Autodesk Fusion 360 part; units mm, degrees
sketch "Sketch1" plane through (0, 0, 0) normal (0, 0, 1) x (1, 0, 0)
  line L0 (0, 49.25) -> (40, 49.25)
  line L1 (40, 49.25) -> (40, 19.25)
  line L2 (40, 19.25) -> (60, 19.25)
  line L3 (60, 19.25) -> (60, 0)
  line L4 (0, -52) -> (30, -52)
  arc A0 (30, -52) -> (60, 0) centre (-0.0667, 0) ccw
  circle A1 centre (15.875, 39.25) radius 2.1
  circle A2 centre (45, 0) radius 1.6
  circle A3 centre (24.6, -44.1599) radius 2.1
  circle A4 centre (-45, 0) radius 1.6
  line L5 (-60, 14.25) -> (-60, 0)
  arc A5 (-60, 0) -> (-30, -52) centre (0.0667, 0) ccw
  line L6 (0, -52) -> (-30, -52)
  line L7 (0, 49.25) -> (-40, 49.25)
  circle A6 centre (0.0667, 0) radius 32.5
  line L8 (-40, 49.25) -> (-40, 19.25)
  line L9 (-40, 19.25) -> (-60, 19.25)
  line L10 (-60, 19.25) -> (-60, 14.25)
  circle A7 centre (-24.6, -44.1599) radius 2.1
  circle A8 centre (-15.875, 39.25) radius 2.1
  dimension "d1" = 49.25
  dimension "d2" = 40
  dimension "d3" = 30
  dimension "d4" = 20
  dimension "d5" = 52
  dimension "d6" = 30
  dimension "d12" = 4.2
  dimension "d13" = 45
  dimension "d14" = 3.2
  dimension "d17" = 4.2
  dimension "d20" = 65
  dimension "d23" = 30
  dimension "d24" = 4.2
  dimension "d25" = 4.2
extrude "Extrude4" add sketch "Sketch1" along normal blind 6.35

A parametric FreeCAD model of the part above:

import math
import FreeCAD as App
import Part
import Sketcher

V = App.Vector

doc = App.newDocument("Part")
params = doc.addObject("Spreadsheet::Sheet", "Params")
for row, (alias, value) in enumerate([
    ("sketch1_diameter", "65 mm"),
    ("sketch1_diameter2", "4.2 mm"),
    ("sketch1_diameter3", "3.2 mm"),
    ("sketch1_width", "20 mm"),
    ("sketch1_height", "30 mm"),
    ("pad1_length", "6.35 mm"),
], start=1):
    params.set(f"A{row}", alias)
    params.set(f"B{row}", "=" + value)
    params.setAlias(f"B{row}", alias)

body = doc.addObject("PartDesign::Body", "Body")

# Sketch on XY plane
sketch1 = body.newObject("Sketcher::SketchObject", "Sketch")
sketch1.AttachmentSupport = (doc.getObject("XY_Plane"), [""])
sketch1.MapMode = "FlatFace"
sketch1.addGeometry([
    Part.LineSegment(V(40, 49.2, 0), V(-40, 49.2, 0)),  # 0
    Part.LineSegment(V(-40, 49.2, 0), V(-40, 19.2, 0)),  # 1
    Part.LineSegment(V(-40, 19.2, 0), V(-60, 19.2, 0)),  # 2
    Part.LineSegment(V(-60, 19.2, 0), V(-60, 0, 0)),  # 3
    Part.ArcOfCircle(Part.Circle(V(0.1, 0, 0), V(0, 0, 1), 60.1), math.radians(180), math.radians(240)),  # 4
    Part.LineSegment(V(-30, -52, 0), V(30, -52, 0)),  # 5
    Part.ArcOfCircle(Part.Circle(V(-0.1, 0, 0), V(0, 0, 1), 60.1), math.radians(-60), math.radians(0)),  # 6
    Part.LineSegment(V(60, 0, 0), V(60, 19.2, 0)),  # 7
    Part.LineSegment(V(60, 19.2, 0), V(40, 19.2, 0)),  # 8
    Part.LineSegment(V(40, 19.2, 0), V(40, 49.2, 0)),  # 9
    Part.Circle(V(-24.6, -44.2, 0), V(0, 0, 1), 2.1),  # 10
    Part.Circle(V(24.6, -44.2, 0), V(0, 0, 1), 2.1),  # 11
    Part.Circle(V(-45, 0, 0), V(0, 0, 1), 1.6),  # 12
    Part.Circle(V(-15.9, 39.2, 0), V(0, 0, 1), 2.1),  # 13
    Part.Circle(V(0.1, 0, 0), V(0, 0, 1), 32.5),  # 14
    Part.Circle(V(45, 0, 0), V(0, 0, 1), 1.6),  # 15
    Part.Circle(V(15.9, 39.2, 0), V(0, 0, 1), 2.1),  # 16
], False)
sketch1.addConstraint([
    Sketcher.Constraint("Coincident", 0, 2, 1, 1),
    Sketcher.Constraint("Coincident", 1, 2, 2, 1),
    Sketcher.Constraint("Coincident", 2, 2, 3, 1),
    Sketcher.Constraint("Tangent", 3, 2, 4, 1),
    Sketcher.Constraint("Coincident", 4, 2, 5, 1),
    Sketcher.Constraint("Coincident", 5, 2, 6, 1),
    Sketcher.Constraint("Tangent", 6, 2, 7, 1),
    Sketcher.Constraint("Coincident", 7, 2, 8, 1),
    Sketcher.Constraint("Coincident", 8, 2, 9, 1),
    Sketcher.Constraint("Coincident", 9, 2, 0, 1),
    Sketcher.Constraint("Horizontal", 0),
    Sketcher.Constraint("Vertical", 1),
    Sketcher.Constraint("Horizontal", 2),
    Sketcher.Constraint("Vertical", 3),
    Sketcher.Constraint("Horizontal", 5),
    Sketcher.Constraint("Vertical", 7),
    Sketcher.Constraint("Horizontal", 8),
    Sketcher.Constraint("Vertical", 9),
    Sketcher.Constraint("Coincident", 14, 3, 4, 3),
    Sketcher.Constraint("Equal", 4, 6),
    Sketcher.Constraint("Equal", 10, 11),
    Sketcher.Constraint("Equal", 11, 13),
    Sketcher.Constraint("Equal", 12, 15),
    Sketcher.Constraint("Equal", 13, 16),
    Sketcher.Constraint("Symmetric", 4, 3, 6, 3, -1, 1),
    Sketcher.Constraint("Symmetric", 12, 3, 15, 3, -1, 1),
    Sketcher.Constraint("Symmetric", 10, 3, 11, 3, -2),
    Sketcher.Constraint("Symmetric", 13, 3, 16, 3, -2),
    Sketcher.Constraint("Symmetric", 1, 2, 8, 2, -2),
    Sketcher.Constraint("PointOnObject", 4, 3, -1),
    Sketcher.Constraint("PointOnObject", 12, 3, -1),
    Sketcher.Constraint("Diameter", 14, 65.0),
    Sketcher.Constraint("Diameter", 10, 4.2),
    Sketcher.Constraint("Diameter", 12, 3.2),
    Sketcher.Constraint("DistanceX", 2, 2, 2, 1, 20.0),
    Sketcher.Constraint("DistanceY", 1, 2, 1, 1, 30.0),
    Sketcher.Constraint("DistanceX", 12, 3, -1, 1, 45.0),
    Sketcher.Constraint("DistanceX", 0, 2, -1, 1, 40.0),
    Sketcher.Constraint("DistanceX", 4, 2, -1, 1, 30.0),
    Sketcher.Constraint("DistanceY", 4, 2, -1, 1, 52.0),
    Sketcher.Constraint("DistanceY", 1, 2, 13, 3, 20.0),
    Sketcher.Constraint("DistanceY", -1, 1, 0, 2, 49.25),
    Sketcher.Constraint("DistanceX", 10, 3, -1, 1, 24.6),
    Sketcher.Constraint("DistanceY", 10, 3, -1, 1, 44.16),
    Sketcher.Constraint("DistanceX", 13, 3, 16, 3, 31.75),
])
sketch1.setExpression("Constraints[31]", "Params.sketch1_diameter")
sketch1.setExpression("Constraints[32]", "Params.sketch1_diameter2")
sketch1.setExpression("Constraints[33]", "Params.sketch1_diameter3")
sketch1.setExpression("Constraints[34]", "Params.sketch1_width")
sketch1.setExpression("Constraints[35]", "Params.sketch1_height")
pad1 = body.newObject("PartDesign::Pad", "Pad")
pad1.Profile = sketch1
pad1.setExpression("Length", "Params.pad1_length")

doc.recompute()
